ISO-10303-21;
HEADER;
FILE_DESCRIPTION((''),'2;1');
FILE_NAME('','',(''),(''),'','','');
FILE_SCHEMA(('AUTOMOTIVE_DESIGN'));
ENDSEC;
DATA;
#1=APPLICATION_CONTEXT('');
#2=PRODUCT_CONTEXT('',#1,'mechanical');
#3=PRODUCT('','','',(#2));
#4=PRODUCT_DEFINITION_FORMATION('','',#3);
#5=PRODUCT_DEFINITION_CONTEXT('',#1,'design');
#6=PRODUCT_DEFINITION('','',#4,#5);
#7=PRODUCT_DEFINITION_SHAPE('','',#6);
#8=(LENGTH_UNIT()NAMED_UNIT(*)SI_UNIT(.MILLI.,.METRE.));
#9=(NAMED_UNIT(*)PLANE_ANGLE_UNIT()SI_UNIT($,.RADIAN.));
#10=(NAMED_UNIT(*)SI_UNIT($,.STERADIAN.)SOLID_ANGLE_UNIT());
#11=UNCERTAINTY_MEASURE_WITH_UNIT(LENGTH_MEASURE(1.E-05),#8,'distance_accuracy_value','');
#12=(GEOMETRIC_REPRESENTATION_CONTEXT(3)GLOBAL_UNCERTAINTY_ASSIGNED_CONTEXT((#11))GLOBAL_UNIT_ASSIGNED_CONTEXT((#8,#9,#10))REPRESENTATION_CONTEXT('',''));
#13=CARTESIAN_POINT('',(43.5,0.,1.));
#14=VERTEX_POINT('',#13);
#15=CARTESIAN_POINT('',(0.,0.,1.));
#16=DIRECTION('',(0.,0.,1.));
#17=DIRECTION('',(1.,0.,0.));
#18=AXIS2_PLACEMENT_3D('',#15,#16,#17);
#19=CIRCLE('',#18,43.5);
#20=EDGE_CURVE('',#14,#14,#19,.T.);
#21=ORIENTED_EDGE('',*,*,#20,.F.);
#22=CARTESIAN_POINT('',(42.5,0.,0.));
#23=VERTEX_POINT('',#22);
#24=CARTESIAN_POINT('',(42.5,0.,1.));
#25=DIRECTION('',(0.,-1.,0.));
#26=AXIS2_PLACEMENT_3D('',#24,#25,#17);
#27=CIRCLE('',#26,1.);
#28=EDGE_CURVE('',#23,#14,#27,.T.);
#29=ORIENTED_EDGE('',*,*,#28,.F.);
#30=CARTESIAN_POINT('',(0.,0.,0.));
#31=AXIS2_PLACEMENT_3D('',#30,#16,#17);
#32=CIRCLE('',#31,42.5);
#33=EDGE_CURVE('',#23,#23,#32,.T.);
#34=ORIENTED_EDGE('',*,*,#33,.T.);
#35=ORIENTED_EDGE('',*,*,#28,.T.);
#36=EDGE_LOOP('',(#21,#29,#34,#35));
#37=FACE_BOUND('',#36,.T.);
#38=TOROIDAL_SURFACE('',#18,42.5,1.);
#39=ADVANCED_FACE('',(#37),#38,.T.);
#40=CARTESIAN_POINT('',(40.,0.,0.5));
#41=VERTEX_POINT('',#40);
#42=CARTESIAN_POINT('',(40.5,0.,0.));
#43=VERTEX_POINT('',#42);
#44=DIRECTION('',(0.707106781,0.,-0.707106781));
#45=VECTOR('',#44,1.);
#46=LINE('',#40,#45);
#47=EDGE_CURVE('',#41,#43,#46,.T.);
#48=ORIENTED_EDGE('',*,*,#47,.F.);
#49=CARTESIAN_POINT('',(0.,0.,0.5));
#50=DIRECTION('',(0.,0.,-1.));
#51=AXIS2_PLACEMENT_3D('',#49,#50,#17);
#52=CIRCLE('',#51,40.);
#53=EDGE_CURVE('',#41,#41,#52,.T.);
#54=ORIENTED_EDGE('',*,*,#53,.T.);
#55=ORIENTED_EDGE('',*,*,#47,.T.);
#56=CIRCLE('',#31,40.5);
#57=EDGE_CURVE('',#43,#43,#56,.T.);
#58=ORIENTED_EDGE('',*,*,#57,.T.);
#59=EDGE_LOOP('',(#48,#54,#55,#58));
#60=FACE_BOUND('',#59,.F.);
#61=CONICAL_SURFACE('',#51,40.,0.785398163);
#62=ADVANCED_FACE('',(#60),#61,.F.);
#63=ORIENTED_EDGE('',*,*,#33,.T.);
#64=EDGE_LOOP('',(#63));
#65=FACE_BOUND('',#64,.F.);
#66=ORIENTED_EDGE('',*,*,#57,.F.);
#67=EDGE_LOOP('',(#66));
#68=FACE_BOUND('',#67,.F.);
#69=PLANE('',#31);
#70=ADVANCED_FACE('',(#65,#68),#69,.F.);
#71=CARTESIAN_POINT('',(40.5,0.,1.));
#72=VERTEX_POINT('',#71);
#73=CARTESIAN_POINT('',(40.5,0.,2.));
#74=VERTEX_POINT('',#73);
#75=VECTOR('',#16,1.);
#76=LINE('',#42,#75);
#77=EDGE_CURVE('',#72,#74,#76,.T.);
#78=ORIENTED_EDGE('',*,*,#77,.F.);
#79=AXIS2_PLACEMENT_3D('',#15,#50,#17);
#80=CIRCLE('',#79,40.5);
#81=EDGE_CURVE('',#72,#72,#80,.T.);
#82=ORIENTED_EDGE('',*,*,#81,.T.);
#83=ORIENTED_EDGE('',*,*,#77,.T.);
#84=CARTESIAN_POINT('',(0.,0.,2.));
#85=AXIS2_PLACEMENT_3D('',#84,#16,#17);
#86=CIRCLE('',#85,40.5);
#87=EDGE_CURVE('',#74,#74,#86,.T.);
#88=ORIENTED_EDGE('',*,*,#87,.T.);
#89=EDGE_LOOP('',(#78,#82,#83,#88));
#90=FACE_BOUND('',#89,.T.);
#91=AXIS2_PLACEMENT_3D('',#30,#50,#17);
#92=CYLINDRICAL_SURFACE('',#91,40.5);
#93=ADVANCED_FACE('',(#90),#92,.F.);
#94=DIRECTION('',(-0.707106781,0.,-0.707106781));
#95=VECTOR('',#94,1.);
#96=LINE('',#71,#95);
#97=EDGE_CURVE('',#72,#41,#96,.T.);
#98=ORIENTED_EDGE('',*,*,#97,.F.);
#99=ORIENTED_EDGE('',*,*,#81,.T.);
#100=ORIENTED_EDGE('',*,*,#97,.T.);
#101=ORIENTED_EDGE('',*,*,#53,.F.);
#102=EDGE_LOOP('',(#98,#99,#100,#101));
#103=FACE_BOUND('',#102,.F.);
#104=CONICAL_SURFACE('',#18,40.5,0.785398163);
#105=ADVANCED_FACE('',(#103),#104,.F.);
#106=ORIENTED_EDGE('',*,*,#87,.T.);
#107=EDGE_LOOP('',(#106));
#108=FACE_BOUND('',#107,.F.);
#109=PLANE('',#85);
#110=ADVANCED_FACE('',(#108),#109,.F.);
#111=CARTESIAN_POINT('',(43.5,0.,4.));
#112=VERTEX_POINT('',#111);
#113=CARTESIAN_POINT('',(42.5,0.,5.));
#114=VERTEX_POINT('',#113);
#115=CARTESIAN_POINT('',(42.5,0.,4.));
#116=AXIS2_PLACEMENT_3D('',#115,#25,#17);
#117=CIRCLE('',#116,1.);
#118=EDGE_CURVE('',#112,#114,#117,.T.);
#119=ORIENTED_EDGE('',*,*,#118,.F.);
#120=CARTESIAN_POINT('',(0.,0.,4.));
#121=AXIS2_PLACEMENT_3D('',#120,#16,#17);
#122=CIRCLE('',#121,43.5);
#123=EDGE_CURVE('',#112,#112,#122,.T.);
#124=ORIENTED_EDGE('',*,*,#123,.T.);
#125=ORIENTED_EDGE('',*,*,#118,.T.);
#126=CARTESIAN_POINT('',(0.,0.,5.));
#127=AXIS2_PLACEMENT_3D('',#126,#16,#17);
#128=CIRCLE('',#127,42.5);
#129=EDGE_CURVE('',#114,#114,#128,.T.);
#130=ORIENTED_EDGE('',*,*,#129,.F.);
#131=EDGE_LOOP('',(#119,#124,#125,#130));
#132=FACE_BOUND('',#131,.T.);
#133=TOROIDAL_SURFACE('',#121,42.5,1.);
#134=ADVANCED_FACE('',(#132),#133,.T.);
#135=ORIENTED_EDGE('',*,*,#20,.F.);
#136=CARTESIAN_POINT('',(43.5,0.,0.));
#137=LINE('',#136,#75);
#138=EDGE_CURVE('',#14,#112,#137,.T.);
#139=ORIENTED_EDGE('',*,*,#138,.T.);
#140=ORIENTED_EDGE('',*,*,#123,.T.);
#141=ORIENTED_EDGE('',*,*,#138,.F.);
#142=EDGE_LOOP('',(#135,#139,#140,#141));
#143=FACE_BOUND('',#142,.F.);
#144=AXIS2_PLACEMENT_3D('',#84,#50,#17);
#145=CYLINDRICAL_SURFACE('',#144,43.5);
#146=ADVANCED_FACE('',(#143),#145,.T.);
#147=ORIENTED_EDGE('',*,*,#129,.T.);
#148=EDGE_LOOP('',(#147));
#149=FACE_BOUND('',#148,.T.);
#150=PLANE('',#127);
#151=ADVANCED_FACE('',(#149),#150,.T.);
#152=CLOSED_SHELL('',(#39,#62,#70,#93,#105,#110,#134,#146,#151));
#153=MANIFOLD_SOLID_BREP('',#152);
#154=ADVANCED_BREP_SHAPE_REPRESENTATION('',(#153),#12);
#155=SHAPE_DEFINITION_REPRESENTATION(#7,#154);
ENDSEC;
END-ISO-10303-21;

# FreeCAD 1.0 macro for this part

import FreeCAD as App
import Part
import Sketcher


def edges_at(feature, points):
    """Names of the edges that pass closest to the given points."""
    edges = feature.Shape.Edges
    near = lambda p: min(range(len(edges)), key=lambda i: edges[i].distToShape(Part.Vertex(*p))[0])
    return sorted({f"Edge{near(p) + 1}" for p in points})

doc = App.newDocument("Part")
body = doc.addObject("PartDesign::Body", "Body")

# Sketch on XY plane
sketch1 = body.newObject("Sketcher::SketchObject", "Sketch")
sketch1.AttachmentSupport = (doc.getObject("XY_Plane"), [""])
sketch1.MapMode = "FlatFace"
sketch1.addGeometry([
    Part.Circle(App.Vector(0, 0, 0), App.Vector(0, 0, 1), 43.5),
    Part.Circle(App.Vector(0, 0, 0), App.Vector(0, 0, 1), 40.5),
], False)
sketch1.addConstraint([
    Sketcher.Constraint("Coincident", 0, 3, -1, 1),
    Sketcher.Constraint("Coincident", 1, 3, -1, 1),
    Sketcher.Constraint("Diameter", 0, 87.0),
    Sketcher.Constraint("Diameter", 1, 81.0),
])
pad1 = body.newObject("PartDesign::Pad", "Pad")
pad1.Profile = sketch1
pad1.Length = 2

# Sketch on XY plane
sketch2 = body.newObject("Sketcher::SketchObject", "Sketch001")
sketch2.AttachmentSupport = (doc.getObject("XY_Plane"), [""])
sketch2.MapMode = "FlatFace"
sketch2.AttachmentOffset = App.Placement(App.Vector(0, 0, 2), App.Rotation())
sketch2.addGeometry(Part.Circle(App.Vector(0, 0, 0), App.Vector(0, 0, 1), 43.5), False)
sketch2.addConstraint([
    Sketcher.Constraint("Coincident", 0, 3, -1, 1),
    Sketcher.Constraint("Diameter", 0, 87.0),
])
pad2 = body.newObject("PartDesign::Pad", "Pad001")
pad2.Profile = sketch2
pad2.Length = 3

# Sketch on XZ plane
sketch3 = body.newObject("Sketcher::SketchObject", "Sketch002")
sketch3.AttachmentSupport = (doc.getObject("XZ_Plane"), [""])
sketch3.MapMode = "FlatFace"
sketch3.addGeometry([
    Part.LineSegment(App.Vector(40, 0.5, 0), App.Vector(40.5, 0, 0)),
    Part.LineSegment(App.Vector(40.5, 0, 0), App.Vector(40.5, 1, 0)),
    Part.LineSegment(App.Vector(40.5, 1, 0), App.Vector(40, 0.5, 0)),
], False)
sketch3.addConstraint([
    Sketcher.Constraint("Coincident", 0, 2, 1, 1),
    Sketcher.Constraint("Coincident", 1, 2, 2, 1),
    Sketcher.Constraint("Coincident", 2, 2, 0, 1),
    Sketcher.Constraint("Vertical", 1),
    Sketcher.Constraint("PointOnObject", 0, 2, -1),
    Sketcher.Constraint("Perpendicular", 0, 2),
    Sketcher.Constraint("Equal", 0, 2),
    Sketcher.Constraint("DistanceY", 1, 1, 1, 2, 1.0),
    Sketcher.Constraint("DistanceX", -1, 1, 2, 2, 40.0),
])
revolution = body.newObject("PartDesign::Revolution", "Revolution")
revolution.Profile = sketch3
revolution.ReferenceAxis = (sketch3, ["V_Axis"])
revolution.Angle = 360
doc.recompute()

fillet = body.newObject("PartDesign::Fillet", "Fillet")
fillet.Base = (revolution, edges_at(revolution, [(-43.5, 0, 5), (-43.5, 0, 0)]))
fillet.Radius = 1

doc.recompute()
